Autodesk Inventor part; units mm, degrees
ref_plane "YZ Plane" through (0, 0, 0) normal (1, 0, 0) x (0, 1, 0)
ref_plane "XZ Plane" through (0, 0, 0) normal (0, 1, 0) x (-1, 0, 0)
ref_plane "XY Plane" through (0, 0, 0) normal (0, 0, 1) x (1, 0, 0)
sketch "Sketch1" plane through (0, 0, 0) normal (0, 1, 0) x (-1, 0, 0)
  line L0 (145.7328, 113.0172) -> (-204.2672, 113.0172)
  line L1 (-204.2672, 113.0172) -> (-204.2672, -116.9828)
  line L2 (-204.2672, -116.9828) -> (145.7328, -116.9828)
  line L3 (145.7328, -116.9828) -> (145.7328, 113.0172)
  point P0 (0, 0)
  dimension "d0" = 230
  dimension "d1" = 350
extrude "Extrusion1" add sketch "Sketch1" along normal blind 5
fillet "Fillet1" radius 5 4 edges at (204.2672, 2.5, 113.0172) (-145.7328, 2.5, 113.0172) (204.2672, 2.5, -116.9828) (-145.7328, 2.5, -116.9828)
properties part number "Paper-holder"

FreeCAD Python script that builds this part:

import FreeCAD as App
import Part
import Sketcher
from FreeCAD import Vector


def edges_at(feature, points):
    """Names of the edges that pass closest to the given points."""
    edges = feature.Shape.Edges
    near = lambda p: min(range(len(edges)), key=lambda i: edges[i].distToShape(Part.Vertex(*p))[0])
    return sorted({f"Edge{near(p) + 1}" for p in points})


def add_polygon(sketch, points):
    """Adds a closed chain of lines whose ends are joined by coincident constraints."""
    first, n = sketch.GeometryCount, len(points)
    for a, b in zip(points, points[1:] + points[:1]):
        sketch.addGeometry(Part.LineSegment(App.Vector(*a, 0), App.Vector(*b, 0)), False)
    for i in range(n):
        sketch.addConstraint(Sketcher.Constraint("Coincident", first + i, 2, first + (i + 1) % n, 1))

doc = App.newDocument("Part")
body = doc.addObject("PartDesign::Body", "Body")

# Sketch on XZ plane
sketch1 = body.newObject("Sketcher::SketchObject", "Sketch")
sketch1.AttachmentSupport = (doc.getObject("XZ_Plane"), [""])
sketch1.MapMode = "FlatFace"
add_polygon(sketch1, [(-146, -117), (-146, 113), (204, 113), (204, -117)])  # lines 0-3
sketch1.addConstraint([
    Sketcher.Constraint("Vertical", 0),
    Sketcher.Constraint("Horizontal", 1),
    Sketcher.Constraint("Vertical", 2),
    Sketcher.Constraint("Horizontal", 3),
    Sketcher.Constraint("DistanceX", 1, 1, 1, 2, 350.0),
    Sketcher.Constraint("DistanceY", 0, 1, 0, 2, 230.0),
    Sketcher.Constraint("DistanceX", 0, 2, -1, 1, 145.7328),
    Sketcher.Constraint("DistanceY", -1, 1, 0, 2, 113.0172),
])
pad1 = body.newObject("PartDesign::Pad", "Pad")
pad1.Profile = sketch1
pad1.Length = 5
pad1.Reversed = True
doc.recompute()

fillet = body.newObject("PartDesign::Fillet", "Fillet")
fillet.Base = (pad1, edges_at(pad1, [
    (204.267, 2.5, 113.017),
    (-145.733, 2.5, 113.017),
    (204.267, 2.5, -116.983),
    (-145.733, 2.5, -116.983),
]))
fillet.Radius = 5

doc.recompute()
